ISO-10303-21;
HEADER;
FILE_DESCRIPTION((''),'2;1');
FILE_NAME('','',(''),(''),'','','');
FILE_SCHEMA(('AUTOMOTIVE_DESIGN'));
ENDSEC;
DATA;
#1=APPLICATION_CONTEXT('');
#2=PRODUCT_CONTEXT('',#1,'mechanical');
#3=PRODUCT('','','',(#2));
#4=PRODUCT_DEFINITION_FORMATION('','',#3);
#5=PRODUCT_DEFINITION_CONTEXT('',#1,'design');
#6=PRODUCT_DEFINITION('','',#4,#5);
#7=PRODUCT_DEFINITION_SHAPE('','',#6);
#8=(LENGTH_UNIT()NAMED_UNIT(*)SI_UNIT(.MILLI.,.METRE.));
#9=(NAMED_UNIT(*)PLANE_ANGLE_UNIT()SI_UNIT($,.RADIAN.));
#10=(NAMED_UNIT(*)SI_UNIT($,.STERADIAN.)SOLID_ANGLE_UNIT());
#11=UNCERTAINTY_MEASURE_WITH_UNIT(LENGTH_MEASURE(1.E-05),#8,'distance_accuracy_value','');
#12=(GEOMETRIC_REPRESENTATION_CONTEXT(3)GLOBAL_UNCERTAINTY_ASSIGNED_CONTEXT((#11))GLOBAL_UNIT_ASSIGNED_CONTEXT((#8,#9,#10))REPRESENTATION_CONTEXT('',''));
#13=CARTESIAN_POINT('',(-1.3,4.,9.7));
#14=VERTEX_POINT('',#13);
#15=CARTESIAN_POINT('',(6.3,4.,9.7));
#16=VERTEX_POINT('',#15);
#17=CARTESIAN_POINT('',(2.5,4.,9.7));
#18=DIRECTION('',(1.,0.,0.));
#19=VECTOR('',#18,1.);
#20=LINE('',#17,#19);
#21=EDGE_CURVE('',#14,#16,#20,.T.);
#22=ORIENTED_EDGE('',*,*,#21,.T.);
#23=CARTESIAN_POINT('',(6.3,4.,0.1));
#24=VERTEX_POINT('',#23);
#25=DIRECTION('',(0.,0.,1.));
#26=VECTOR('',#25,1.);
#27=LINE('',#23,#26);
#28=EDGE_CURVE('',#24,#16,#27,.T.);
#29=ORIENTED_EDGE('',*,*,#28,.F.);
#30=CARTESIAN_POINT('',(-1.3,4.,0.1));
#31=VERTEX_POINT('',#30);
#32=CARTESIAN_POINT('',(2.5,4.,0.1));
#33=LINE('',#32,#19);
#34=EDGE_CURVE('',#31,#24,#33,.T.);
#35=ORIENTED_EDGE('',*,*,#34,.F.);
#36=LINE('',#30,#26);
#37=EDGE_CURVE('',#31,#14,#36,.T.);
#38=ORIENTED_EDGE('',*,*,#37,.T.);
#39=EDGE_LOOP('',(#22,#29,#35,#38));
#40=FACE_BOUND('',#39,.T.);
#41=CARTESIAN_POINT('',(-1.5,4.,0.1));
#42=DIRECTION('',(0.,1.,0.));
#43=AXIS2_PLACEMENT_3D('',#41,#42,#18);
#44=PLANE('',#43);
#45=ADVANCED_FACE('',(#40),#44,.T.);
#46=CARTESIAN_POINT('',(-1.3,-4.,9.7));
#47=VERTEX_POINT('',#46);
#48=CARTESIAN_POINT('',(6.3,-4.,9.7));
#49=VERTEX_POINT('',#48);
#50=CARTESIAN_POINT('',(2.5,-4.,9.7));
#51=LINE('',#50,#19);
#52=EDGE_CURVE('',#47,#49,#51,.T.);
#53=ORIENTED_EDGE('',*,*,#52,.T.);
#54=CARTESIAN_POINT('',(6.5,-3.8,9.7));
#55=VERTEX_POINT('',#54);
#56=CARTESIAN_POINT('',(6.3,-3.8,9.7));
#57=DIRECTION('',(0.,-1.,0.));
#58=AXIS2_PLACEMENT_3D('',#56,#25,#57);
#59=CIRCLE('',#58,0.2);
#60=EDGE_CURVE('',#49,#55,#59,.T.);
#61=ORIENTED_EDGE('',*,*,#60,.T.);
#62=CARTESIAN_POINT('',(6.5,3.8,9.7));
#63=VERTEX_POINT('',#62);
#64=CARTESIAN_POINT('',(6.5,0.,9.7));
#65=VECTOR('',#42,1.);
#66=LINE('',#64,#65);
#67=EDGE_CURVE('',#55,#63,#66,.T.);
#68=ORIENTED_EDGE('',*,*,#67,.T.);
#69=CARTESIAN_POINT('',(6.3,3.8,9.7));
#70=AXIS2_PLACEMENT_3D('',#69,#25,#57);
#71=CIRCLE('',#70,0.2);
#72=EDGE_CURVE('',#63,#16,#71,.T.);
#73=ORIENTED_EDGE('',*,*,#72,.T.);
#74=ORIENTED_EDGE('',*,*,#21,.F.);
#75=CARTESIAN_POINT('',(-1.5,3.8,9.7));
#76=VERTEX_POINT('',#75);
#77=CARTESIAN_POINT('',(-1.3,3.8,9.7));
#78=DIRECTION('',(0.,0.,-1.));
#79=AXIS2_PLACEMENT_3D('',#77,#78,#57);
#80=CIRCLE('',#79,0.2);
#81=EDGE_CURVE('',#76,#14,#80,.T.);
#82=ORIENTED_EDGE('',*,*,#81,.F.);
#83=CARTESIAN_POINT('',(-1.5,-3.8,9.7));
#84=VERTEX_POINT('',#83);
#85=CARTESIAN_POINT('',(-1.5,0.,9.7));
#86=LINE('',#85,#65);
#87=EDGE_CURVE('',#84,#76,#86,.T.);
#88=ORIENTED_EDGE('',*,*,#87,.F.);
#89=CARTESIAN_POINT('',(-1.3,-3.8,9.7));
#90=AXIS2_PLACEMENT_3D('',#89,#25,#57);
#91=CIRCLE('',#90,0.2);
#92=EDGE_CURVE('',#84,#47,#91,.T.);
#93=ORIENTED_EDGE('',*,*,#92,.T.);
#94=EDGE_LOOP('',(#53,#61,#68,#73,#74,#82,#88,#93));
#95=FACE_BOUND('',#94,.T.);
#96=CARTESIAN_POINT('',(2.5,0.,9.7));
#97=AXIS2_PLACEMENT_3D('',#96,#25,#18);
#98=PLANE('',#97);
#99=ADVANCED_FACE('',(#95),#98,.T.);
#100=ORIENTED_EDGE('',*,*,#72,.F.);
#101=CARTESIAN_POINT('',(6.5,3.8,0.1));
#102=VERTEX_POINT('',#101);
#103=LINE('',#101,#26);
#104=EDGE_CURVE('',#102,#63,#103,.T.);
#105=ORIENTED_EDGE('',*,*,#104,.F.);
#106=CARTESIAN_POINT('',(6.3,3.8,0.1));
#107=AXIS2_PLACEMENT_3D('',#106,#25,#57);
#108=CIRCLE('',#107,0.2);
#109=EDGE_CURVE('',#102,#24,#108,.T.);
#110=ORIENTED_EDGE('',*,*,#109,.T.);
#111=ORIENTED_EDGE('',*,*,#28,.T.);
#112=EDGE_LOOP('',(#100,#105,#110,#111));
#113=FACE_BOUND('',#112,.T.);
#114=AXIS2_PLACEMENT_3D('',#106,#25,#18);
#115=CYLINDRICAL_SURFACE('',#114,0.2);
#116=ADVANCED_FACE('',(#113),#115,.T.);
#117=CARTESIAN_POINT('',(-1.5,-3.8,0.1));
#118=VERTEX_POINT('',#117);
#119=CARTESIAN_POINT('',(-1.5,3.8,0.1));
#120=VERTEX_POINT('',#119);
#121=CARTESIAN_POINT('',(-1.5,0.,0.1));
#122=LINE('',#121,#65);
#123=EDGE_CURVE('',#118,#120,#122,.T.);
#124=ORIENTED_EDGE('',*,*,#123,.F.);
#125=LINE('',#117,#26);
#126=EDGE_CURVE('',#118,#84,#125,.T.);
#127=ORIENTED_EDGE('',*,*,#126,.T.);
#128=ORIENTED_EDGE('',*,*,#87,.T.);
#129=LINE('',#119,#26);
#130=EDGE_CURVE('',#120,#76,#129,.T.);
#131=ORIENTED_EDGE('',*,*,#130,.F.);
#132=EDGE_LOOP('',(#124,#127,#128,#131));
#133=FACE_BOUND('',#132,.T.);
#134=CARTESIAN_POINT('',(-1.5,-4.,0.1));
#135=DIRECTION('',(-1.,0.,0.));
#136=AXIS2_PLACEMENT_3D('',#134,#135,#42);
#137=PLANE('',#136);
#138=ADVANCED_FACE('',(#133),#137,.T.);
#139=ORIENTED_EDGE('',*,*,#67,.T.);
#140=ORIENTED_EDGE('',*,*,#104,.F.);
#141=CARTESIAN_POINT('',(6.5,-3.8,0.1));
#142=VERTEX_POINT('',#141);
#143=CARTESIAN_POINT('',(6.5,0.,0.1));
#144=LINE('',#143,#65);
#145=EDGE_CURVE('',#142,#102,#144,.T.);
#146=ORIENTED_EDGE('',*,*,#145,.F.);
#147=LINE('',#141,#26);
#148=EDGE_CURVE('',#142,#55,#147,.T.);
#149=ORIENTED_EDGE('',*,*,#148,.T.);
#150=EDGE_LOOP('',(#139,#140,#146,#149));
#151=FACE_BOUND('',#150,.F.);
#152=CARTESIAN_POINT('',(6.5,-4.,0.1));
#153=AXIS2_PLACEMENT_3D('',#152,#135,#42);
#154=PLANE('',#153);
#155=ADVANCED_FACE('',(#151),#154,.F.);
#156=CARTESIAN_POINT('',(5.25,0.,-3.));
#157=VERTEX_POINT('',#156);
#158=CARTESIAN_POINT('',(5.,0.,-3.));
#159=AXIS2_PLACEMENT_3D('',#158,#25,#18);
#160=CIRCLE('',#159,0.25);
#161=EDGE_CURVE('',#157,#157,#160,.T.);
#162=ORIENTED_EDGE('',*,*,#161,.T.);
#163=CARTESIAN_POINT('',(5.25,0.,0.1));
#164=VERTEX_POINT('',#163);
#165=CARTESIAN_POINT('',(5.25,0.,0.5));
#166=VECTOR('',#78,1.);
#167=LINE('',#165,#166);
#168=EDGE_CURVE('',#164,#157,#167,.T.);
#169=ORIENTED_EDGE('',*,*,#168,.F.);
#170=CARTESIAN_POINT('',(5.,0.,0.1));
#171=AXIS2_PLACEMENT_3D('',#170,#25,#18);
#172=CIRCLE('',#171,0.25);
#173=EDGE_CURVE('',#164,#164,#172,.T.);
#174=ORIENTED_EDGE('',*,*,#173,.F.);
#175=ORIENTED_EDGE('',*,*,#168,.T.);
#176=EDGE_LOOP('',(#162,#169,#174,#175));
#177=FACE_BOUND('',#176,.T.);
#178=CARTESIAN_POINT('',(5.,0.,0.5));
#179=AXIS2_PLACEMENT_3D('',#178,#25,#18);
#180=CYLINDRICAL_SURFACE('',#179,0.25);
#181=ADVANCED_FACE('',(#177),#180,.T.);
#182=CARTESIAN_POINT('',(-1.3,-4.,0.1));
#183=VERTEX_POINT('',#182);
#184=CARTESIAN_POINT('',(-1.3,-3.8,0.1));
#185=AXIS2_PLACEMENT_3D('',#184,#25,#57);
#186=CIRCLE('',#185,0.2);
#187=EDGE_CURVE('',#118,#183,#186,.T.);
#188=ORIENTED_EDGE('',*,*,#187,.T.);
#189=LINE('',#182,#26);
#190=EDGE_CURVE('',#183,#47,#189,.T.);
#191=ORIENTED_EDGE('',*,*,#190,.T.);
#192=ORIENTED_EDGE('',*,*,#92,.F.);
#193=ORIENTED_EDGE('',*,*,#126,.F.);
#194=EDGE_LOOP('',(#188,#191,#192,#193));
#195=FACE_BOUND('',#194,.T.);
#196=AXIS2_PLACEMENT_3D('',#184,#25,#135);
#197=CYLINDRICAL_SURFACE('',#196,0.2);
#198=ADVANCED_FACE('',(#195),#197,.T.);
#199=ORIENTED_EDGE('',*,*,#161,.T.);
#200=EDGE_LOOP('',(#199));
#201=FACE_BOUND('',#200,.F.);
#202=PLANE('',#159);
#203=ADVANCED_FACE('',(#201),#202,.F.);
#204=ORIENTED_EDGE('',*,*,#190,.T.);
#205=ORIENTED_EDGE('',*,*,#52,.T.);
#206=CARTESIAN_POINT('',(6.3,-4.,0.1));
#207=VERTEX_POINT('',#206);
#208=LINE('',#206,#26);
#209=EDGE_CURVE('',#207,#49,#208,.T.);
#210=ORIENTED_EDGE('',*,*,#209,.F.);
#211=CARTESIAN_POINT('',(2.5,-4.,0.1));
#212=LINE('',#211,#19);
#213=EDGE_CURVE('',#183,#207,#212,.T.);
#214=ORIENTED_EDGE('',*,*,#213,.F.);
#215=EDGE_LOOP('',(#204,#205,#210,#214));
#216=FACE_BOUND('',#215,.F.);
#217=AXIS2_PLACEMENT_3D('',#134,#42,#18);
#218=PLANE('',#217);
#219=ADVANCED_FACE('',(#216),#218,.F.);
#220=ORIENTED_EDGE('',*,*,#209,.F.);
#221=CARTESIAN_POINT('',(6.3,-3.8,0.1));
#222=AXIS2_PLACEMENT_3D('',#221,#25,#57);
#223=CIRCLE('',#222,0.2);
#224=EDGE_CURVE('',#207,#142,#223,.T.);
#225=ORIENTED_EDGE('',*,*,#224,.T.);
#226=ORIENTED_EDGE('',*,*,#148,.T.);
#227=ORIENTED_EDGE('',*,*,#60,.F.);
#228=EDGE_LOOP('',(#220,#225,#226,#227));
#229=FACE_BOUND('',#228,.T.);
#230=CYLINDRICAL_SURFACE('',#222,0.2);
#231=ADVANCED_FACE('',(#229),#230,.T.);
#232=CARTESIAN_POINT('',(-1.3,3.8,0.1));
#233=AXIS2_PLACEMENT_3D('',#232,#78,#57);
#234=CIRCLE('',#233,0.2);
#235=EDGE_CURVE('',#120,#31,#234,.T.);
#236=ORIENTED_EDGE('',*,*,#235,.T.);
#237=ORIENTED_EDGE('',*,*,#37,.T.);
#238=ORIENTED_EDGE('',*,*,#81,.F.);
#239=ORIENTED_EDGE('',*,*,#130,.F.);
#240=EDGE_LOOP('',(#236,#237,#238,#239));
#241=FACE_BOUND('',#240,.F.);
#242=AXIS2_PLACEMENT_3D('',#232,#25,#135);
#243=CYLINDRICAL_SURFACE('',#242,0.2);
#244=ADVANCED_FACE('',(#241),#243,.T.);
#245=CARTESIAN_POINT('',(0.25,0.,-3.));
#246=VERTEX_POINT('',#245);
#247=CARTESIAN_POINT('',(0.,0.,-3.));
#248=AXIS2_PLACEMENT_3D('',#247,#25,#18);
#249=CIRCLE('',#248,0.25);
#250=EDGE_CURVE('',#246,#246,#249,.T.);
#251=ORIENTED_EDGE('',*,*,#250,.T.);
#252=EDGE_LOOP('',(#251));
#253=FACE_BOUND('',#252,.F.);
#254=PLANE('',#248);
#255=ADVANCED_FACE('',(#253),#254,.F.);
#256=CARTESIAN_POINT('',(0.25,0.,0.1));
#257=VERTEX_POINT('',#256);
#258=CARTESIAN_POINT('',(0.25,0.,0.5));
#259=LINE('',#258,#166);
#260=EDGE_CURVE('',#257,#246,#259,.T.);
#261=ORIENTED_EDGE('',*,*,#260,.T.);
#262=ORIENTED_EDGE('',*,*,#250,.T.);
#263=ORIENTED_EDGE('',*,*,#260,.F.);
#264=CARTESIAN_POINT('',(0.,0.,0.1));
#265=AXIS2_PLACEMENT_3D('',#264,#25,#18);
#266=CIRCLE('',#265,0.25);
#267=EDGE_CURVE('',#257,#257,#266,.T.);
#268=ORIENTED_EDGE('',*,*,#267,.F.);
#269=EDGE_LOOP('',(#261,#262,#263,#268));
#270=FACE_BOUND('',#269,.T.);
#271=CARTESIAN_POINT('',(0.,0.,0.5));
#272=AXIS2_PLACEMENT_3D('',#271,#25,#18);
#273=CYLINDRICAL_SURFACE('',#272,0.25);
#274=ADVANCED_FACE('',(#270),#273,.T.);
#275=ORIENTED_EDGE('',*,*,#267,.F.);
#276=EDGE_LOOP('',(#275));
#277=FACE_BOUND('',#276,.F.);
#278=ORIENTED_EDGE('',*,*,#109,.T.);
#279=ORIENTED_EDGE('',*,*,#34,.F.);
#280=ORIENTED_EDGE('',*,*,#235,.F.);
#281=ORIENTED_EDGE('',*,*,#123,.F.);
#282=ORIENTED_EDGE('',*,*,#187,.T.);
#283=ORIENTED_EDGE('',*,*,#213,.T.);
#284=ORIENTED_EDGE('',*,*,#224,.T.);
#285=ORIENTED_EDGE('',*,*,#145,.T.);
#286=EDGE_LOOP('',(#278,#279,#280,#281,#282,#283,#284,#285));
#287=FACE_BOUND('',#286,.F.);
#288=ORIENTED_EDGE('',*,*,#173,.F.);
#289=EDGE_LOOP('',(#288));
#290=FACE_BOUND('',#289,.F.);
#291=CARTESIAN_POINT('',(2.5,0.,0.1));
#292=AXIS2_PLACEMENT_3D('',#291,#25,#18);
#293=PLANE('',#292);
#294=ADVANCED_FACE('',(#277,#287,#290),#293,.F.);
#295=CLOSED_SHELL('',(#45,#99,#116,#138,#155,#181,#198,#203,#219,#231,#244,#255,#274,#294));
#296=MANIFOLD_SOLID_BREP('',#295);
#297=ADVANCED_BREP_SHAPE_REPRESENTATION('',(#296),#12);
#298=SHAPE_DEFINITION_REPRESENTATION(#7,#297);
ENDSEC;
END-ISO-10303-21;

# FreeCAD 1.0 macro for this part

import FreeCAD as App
import Part
import Sketcher
from FreeCAD import Vector
Q = App.Units.Quantity


def edges_at(feature, points):
    """Names of the edges that pass closest to the given points."""
    edges = feature.Shape.Edges
    near = lambda p: min(range(len(edges)), key=lambda i: edges[i].distToShape(Part.Vertex(*p))[0])
    return sorted({f"Edge{near(p) + 1}" for p in points})


def add_polygon(sketch, points):
    """Adds a closed chain of lines whose ends are joined by coincident constraints."""
    first, n = sketch.GeometryCount, len(points)
    for a, b in zip(points, points[1:] + points[:1]):
        sketch.addGeometry(Part.LineSegment(App.Vector(*a, 0), App.Vector(*b, 0)), False)
    for i in range(n):
        sketch.addConstraint(Sketcher.Constraint("Coincident", first + i, 2, first + (i + 1) % n, 1))

doc = App.newDocument("Part")
body = doc.addObject("PartDesign::Body", "Body")

sketch1 = doc.addObject("Sketcher::SketchObject", "Sketch")
body.addObject(sketch1)
sketch1.AttachmentSupport = (doc.XY_Plane, [""])
sketch1.MapMode = "FlatFace"
sketch1.AttachmentOffset = App.Placement(Vector(0, 0, 0.1), App.Rotation())
add_polygon(sketch1, [(-2, 4), (-2, -4), (6, -4), (6, 4)])
sketch1.addConstraint([
    Sketcher.Constraint("Vertical", 0),
    Sketcher.Constraint("Horizontal", 1),
    Sketcher.Constraint("Vertical", 2),
    Sketcher.Constraint("Horizontal", 3),
    Sketcher.Constraint("Equal", 3, 0),
    Sketcher.Constraint("DistanceX", 1, 1, 1, 2, Q("8 mm")),
    Sketcher.Constraint("DistanceY", 0, 2, -1, 1, Q("4 mm")),
    Sketcher.Constraint("DistanceX", 0, 2, -1, 1, Q("1.5 mm")),
])
pad1 = doc.addObject("PartDesign::Pad", "Pad")
body.addObject(pad1)
pad1.Profile = sketch1
pad1.Length = 9.6
doc.recompute()

fillet = doc.addObject("PartDesign::Fillet", "Fillet")
body.addObject(fillet)
fillet.Base = (pad1, edges_at(pad1, [
    (6.5, -4, 4.9),
    (6.5, 4, 4.9),
    (-1.5, -4, 4.9),
    (-1.5, 4, 4.9),
]))
fillet.Radius = 0.2
body2 = doc.addObject("PartDesign::Body", "Body001")
body2.AllowCompound = True

sketch2 = doc.addObject("Sketcher::SketchObject", "Sketch001")
body2.addObject(sketch2)
sketch2.AttachmentSupport = (doc.getObject("XY_Plane001"), [""])
sketch2.MapMode = "FlatFace"
sketch2.AttachmentOffset = App.Placement(Vector(0, 0, 0.5), App.Rotation())
sketch2.addGeometry([
    Part.Circle(Vector(0, 0, 0), Vector(0, 0, 1), 0.25),
    Part.Circle(Vector(5, 0, 0), Vector(0, 0, 1), 0.25),
], False)
sketch2.addConstraint([
    Sketcher.Constraint("Coincident", 0, 3, -1, 1),
    Sketcher.Constraint("Equal", 0, 1),
    Sketcher.Constraint("PointOnObject", 1, 3, -1),
    Sketcher.Constraint("Diameter", 0, Q("0.5 mm")),
    Sketcher.Constraint("DistanceX", -1, 1, 1, 3, Q("5 mm")),
])
pad2 = doc.addObject("PartDesign::Pad", "Pad001")
body2.addObject(pad2)
pad2.Profile = sketch2
pad2.Length = 3.5
pad2.Reversed = True
doc.recompute()

boolean = doc.addObject("PartDesign::Boolean", "Boolean")
body2.addObject(boolean)
boolean.Type = "Fuse"
boolean.addObjects([body])

doc.recompute()
